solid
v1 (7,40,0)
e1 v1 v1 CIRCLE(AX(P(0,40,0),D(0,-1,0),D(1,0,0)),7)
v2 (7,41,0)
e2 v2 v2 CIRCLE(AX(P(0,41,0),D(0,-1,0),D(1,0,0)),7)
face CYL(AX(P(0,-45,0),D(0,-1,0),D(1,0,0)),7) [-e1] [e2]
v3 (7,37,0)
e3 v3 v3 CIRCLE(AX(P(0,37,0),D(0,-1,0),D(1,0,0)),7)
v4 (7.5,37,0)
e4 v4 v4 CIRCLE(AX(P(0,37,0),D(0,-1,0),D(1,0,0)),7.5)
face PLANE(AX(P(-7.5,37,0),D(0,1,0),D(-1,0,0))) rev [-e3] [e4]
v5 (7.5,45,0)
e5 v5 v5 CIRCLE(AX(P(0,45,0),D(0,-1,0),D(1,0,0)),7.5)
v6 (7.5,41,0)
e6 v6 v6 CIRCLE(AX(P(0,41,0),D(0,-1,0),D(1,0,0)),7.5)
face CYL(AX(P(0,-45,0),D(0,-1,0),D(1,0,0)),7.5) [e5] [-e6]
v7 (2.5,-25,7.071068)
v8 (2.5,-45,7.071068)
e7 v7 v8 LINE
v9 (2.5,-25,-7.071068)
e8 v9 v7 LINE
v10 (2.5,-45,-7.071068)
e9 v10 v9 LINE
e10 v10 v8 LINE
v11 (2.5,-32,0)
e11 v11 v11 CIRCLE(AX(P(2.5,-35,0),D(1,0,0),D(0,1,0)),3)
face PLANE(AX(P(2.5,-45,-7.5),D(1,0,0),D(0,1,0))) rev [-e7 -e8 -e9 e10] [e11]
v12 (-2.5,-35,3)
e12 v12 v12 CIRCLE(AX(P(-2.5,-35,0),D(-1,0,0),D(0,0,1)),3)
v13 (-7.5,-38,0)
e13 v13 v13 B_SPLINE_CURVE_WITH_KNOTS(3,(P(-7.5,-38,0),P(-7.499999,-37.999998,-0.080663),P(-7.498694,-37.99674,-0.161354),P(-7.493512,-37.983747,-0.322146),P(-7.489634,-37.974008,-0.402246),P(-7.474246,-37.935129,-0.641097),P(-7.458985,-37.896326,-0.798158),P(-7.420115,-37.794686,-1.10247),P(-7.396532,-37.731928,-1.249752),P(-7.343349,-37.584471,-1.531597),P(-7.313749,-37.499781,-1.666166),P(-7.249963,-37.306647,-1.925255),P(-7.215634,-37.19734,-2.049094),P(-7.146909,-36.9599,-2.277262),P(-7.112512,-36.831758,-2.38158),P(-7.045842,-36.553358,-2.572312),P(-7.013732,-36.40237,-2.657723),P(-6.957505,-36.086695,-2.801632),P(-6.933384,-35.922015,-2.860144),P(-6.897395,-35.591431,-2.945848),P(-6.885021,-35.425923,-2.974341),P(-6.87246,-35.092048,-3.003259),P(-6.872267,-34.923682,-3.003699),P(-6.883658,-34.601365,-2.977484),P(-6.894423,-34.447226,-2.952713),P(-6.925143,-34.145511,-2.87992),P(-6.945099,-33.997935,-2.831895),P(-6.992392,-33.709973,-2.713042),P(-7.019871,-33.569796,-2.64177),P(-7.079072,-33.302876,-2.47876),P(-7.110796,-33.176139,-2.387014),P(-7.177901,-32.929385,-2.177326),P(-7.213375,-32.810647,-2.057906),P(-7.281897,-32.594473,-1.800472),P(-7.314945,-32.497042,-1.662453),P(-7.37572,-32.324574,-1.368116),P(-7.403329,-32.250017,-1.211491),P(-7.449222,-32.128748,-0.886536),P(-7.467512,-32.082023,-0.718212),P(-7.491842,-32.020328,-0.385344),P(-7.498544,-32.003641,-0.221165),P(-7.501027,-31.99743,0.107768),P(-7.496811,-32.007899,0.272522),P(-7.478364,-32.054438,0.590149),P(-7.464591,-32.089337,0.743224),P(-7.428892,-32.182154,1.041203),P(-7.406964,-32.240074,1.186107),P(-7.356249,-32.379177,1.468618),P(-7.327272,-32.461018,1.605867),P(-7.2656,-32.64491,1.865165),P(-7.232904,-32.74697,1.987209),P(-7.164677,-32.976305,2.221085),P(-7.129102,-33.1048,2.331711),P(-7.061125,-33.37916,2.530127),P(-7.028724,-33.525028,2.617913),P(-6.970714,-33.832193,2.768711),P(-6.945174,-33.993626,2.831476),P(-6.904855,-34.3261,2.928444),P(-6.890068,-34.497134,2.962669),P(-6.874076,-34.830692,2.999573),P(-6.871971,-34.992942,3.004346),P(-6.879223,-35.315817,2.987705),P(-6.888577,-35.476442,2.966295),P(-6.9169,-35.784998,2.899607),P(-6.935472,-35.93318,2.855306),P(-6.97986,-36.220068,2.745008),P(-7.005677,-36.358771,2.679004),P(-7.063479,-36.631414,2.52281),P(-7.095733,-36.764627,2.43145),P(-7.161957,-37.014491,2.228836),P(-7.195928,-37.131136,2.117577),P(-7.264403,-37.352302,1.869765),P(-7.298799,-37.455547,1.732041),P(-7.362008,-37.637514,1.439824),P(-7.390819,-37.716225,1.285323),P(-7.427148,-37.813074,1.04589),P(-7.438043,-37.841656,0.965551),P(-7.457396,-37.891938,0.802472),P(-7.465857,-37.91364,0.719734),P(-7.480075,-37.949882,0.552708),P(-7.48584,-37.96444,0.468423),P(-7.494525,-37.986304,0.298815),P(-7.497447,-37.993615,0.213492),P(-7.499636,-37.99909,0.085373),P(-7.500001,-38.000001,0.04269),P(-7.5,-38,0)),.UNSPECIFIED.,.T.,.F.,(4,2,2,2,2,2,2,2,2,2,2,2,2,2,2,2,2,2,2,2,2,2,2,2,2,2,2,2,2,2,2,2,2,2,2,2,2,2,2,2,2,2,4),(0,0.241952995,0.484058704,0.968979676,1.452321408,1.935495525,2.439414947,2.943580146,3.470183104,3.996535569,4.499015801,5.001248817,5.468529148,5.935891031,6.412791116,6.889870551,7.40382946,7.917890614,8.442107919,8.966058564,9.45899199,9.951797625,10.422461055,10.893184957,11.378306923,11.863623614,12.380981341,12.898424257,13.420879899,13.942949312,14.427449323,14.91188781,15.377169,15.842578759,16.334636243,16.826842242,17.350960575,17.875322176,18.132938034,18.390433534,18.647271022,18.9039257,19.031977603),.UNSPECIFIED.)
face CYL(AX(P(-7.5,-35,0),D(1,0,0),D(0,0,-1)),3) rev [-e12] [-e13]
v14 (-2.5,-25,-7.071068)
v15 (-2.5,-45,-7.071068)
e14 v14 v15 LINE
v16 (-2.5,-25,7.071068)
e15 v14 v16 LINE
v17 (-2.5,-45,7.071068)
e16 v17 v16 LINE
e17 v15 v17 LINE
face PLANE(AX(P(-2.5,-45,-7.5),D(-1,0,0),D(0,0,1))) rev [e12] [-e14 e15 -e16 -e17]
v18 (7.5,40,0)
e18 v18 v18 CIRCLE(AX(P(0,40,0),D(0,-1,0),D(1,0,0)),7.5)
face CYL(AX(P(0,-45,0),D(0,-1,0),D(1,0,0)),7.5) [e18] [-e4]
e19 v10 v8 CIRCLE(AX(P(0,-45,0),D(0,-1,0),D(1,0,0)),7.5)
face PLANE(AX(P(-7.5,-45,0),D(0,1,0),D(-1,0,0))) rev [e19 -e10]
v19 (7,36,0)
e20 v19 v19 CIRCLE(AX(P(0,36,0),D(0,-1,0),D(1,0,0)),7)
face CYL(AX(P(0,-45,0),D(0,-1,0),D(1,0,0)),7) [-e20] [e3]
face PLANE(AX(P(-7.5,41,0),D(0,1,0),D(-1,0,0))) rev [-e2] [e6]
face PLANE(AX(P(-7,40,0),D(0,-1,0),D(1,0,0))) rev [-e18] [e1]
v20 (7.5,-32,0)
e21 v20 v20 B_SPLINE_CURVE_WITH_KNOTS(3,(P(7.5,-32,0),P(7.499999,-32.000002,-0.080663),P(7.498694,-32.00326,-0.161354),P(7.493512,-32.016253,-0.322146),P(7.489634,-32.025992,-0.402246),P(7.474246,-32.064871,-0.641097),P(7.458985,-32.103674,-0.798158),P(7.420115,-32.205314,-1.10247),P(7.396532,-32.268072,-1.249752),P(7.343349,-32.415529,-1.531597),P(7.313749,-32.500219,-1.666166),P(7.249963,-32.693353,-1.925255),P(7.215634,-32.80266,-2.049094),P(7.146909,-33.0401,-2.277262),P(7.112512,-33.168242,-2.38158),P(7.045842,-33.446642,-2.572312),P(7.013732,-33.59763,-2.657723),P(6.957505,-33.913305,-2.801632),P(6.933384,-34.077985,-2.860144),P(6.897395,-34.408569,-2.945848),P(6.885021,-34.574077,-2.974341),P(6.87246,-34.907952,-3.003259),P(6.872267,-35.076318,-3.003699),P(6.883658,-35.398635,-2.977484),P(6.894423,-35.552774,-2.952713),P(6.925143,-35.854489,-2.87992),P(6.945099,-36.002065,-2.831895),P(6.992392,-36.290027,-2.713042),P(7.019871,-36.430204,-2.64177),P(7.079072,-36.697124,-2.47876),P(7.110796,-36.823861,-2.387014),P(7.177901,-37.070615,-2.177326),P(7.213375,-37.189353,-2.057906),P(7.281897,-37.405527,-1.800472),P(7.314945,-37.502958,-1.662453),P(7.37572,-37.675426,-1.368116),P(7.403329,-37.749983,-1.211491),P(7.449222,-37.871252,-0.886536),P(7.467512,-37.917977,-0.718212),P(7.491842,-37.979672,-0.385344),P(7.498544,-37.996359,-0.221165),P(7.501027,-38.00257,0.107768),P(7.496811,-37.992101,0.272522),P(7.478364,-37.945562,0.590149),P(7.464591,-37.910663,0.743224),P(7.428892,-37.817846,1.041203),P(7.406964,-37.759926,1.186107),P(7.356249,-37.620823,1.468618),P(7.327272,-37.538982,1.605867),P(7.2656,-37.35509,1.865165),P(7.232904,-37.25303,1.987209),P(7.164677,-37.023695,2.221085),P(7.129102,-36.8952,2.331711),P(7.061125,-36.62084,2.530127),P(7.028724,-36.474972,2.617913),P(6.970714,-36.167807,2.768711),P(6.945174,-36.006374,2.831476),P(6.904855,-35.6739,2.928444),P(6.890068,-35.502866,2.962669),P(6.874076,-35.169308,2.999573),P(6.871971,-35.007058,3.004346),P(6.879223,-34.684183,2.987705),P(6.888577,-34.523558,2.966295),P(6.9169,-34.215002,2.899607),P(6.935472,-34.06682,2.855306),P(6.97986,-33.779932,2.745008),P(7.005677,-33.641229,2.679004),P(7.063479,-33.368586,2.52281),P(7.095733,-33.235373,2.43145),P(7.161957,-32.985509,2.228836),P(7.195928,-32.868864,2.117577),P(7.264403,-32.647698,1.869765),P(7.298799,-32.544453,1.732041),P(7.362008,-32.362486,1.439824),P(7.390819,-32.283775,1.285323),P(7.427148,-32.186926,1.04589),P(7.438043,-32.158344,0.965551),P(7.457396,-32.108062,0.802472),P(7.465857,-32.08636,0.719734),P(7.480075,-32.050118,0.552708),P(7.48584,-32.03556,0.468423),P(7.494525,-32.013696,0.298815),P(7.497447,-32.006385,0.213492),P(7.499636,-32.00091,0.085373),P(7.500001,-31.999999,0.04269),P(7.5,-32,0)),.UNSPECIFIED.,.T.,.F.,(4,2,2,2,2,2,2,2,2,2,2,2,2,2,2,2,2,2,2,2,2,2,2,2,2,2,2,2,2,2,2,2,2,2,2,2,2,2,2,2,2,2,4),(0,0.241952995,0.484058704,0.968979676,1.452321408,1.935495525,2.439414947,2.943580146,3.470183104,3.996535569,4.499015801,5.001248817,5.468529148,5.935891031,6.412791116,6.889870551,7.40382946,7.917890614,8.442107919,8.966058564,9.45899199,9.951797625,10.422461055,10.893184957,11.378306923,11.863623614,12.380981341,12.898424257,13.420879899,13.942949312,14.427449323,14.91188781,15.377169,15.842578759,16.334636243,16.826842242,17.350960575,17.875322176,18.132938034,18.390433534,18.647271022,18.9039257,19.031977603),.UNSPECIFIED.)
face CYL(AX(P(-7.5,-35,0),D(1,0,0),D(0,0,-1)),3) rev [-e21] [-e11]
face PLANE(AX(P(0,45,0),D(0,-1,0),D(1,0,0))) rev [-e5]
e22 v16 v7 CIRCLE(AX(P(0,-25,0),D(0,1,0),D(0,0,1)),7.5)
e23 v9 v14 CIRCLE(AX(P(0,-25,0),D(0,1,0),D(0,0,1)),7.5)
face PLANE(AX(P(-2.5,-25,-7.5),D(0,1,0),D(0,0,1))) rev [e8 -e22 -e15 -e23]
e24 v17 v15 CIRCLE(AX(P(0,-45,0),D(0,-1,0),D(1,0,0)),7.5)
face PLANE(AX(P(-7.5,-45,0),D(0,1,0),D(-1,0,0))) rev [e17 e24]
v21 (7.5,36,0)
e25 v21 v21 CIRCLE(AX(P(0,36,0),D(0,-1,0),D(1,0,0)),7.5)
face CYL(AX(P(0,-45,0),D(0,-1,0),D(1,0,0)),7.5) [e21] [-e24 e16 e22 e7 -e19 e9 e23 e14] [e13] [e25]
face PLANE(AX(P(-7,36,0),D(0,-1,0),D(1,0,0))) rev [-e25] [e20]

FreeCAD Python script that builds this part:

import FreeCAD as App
import Part
import Sketcher

doc = App.newDocument("Part")
body = doc.addObject("PartDesign::Body", "Body")

# Sketch on XY plane
sketch1 = body.newObject("Sketcher::SketchObject", "Sketch")
sketch1.AttachmentSupport = (doc.getObject("XY_Plane"), [""])
sketch1.MapMode = "FlatFace"
sketch1.addGeometry(Part.LineSegment(App.Vector(0, -45, 0), App.Vector(0, 45, 0)), False)
sketch1.addGeometry(Part.LineSegment(App.Vector(0, 45, 0), App.Vector(-7.5, 45, 0)), False)
sketch1.addGeometry(Part.LineSegment(App.Vector(-7.5, 45, 0), App.Vector(-7.5, 41, 0)), False)
sketch1.addGeometry(Part.LineSegment(App.Vector(-7.5, 41, 0), App.Vector(-7, 41, 0)), False)
sketch1.addGeometry(Part.LineSegment(App.Vector(-7, 41, 0), App.Vector(-7, 40, 0)), False)
sketch1.addGeometry(Part.LineSegment(App.Vector(-7, 40, 0), App.Vector(-7.5, 40, 0)), False)
sketch1.addGeometry(Part.LineSegment(App.Vector(-7.5, 40, 0), App.Vector(-7.5, 37, 0)), False)
sketch1.addGeometry(Part.LineSegment(App.Vector(-7.5, 37, 0), App.Vector(-7, 37, 0)), False)
sketch1.addGeometry(Part.LineSegment(App.Vector(-7, 37, 0), App.Vector(-7, 36, 0)), False)
sketch1.addGeometry(Part.LineSegment(App.Vector(-7, 36, 0), App.Vector(-7.5, 36, 0)), False)
sketch1.addGeometry(Part.LineSegment(App.Vector(-7.5, 36, 0), App.Vector(-7.5, -45, 0)), False)
sketch1.addGeometry(Part.LineSegment(App.Vector(-7.5, -45, 0), App.Vector(0, -45, 0)), False)
sketch1.addConstraint(Sketcher.Constraint("Coincident", 0, 2, 1, 1))
sketch1.addConstraint(Sketcher.Constraint("Coincident", 1, 2, 2, 1))
sketch1.addConstraint(Sketcher.Constraint("Coincident", 2, 2, 3, 1))
sketch1.addConstraint(Sketcher.Constraint("Coincident", 3, 2, 4, 1))
sketch1.addConstraint(Sketcher.Constraint("Coincident", 4, 2, 5, 1))
sketch1.addConstraint(Sketcher.Constraint("Coincident", 5, 2, 6, 1))
sketch1.addConstraint(Sketcher.Constraint("Coincident", 6, 2, 7, 1))
sketch1.addConstraint(Sketcher.Constraint("Coincident", 7, 2, 8, 1))
sketch1.addConstraint(Sketcher.Constraint("Coincident", 8, 2, 9, 1))
sketch1.addConstraint(Sketcher.Constraint("Coincident", 9, 2, 10, 1))
sketch1.addConstraint(Sketcher.Constraint("Coincident", 10, 2, 11, 1))
sketch1.addConstraint(Sketcher.Constraint("Coincident", 11, 2, 0, 1))
sketch1.addConstraint(Sketcher.Constraint("Vertical", 0))
sketch1.addConstraint(Sketcher.Constraint("Horizontal", 1))
sketch1.addConstraint(Sketcher.Constraint("Vertical", 2))
sketch1.addConstraint(Sketcher.Constraint("Horizontal", 3))
sketch1.addConstraint(Sketcher.Constraint("Vertical", 4))
sketch1.addConstraint(Sketcher.Constraint("Horizontal", 5))
sketch1.addConstraint(Sketcher.Constraint("Vertical", 6))
sketch1.addConstraint(Sketcher.Constraint("Horizontal", 7))
sketch1.addConstraint(Sketcher.Constraint("Vertical", 8))
sketch1.addConstraint(Sketcher.Constraint("Horizontal", 9))
sketch1.addConstraint(Sketcher.Constraint("Vertical", 10))
sketch1.addConstraint(Sketcher.Constraint("Horizontal", 11))
sketch1.addConstraint(Sketcher.Constraint("Symmetric", 0, 2, 11, 2, -1, 1))
sketch1.addConstraint(Sketcher.Constraint("Vertical", 2, 2, 5, 2))
sketch1.addConstraint(Sketcher.Constraint("Vertical", 4, 2, 7, 2))
sketch1.addConstraint(Sketcher.Constraint("Vertical", 6, 2, 9, 2))
sketch1.addConstraint(Sketcher.Constraint("Equal", 4, 8))
sketch1.addConstraint(Sketcher.Constraint("DistanceY", 0, 1, 0, 2, 90.0))
sketch1.addConstraint(Sketcher.Constraint("DistanceY", 2, 2, 2, 1, 4.0))
sketch1.addConstraint(Sketcher.Constraint("DistanceY", 4, 2, 4, 1, 1.0))
sketch1.addConstraint(Sketcher.Constraint("DistanceY", 6, 2, 6, 1, 3.0))
sketch1.addConstraint(Sketcher.Constraint("DistanceX", 1, 2, 1, 1, 7.5))
sketch1.addConstraint(Sketcher.Constraint("DistanceX", 3, 1, 3, 2, 0.5))
revolution = body.newObject("PartDesign::Revolution", "Revolution")
revolution.Profile = sketch1
revolution.ReferenceAxis = (sketch1, ["V_Axis"])
revolution.Angle = 360

# Sketch on XY plane
sketch2 = body.newObject("Sketcher::SketchObject", "Sketch001")
sketch2.AttachmentSupport = (doc.getObject("XY_Plane"), [""])
sketch2.MapMode = "FlatFace"
sketch2.AttachmentOffset = App.Placement(App.Vector(0, 0, 7.5), App.Rotation())
sketch2.addGeometry(Part.LineSegment(App.Vector(-2.5, -25, 0), App.Vector(-2.5, -45, 0)), False)
sketch2.addGeometry(Part.LineSegment(App.Vector(-2.5, -45, 0), App.Vector(2.5, -45, 0)), False)
sketch2.addGeometry(Part.LineSegment(App.Vector(2.5, -45, 0), App.Vector(2.5, -25, 0)), False)
sketch2.addGeometry(Part.LineSegment(App.Vector(2.5, -25, 0), App.Vector(-2.5, -25, 0)), False)
sketch2.addConstraint(Sketcher.Constraint("Coincident", 0, 2, 1, 1))
sketch2.addConstraint(Sketcher.Constraint("Coincident", 1, 2, 2, 1))
sketch2.addConstraint(Sketcher.Constraint("Coincident", 2, 2, 3, 1))
sketch2.addConstraint(Sketcher.Constraint("Coincident", 3, 2, 0, 1))
sketch2.addConstraint(Sketcher.Constraint("Vertical", 0))
sketch2.addConstraint(Sketcher.Constraint("Horizontal", 1))
sketch2.addConstraint(Sketcher.Constraint("Vertical", 2))
sketch2.addConstraint(Sketcher.Constraint("Horizontal", 3))
sketch2.addConstraint(Sketcher.Constraint("DistanceX", 1, 1, 1, 2, 5.0))
sketch2.addConstraint(Sketcher.Constraint("DistanceY", 0, 2, 0, 1, 20.0))
sketch2.addConstraint(Sketcher.Constraint("DistanceY", 0, 2, -1, 1, 45.0))
sketch2.addConstraint(Sketcher.Constraint("DistanceX", 0, 2, -1, 1, 2.5))
pocket1 = body.newObject("PartDesign::Pocket", "Pocket")
pocket1.Profile = sketch2
pocket1.Type = "ThroughAll"

# Sketch on YZ plane
sketch3 = body.newObject("Sketcher::SketchObject", "Sketch002")
sketch3.AttachmentSupport = (doc.getObject("YZ_Plane"), [""])
sketch3.MapMode = "FlatFace"
sketch3.addGeometry(Part.Circle(App.Vector(-35, 0, 0), App.Vector(0, 0, 1), 3), False)
sketch3.addConstraint(Sketcher.Constraint("PointOnObject", 0, 3, -1))
sketch3.addConstraint(Sketcher.Constraint("Diameter", 0, 6.0))
sketch3.addConstraint(Sketcher.Constraint("DistanceX", 0, 3, -1, 1, 35.0))
pocket2 = body.newObject("PartDesign::Pocket", "Pocket001")
pocket2.Profile = sketch3
pocket2.Type = "ThroughAll"
pocket2.Midplane = True

doc.recompute()
